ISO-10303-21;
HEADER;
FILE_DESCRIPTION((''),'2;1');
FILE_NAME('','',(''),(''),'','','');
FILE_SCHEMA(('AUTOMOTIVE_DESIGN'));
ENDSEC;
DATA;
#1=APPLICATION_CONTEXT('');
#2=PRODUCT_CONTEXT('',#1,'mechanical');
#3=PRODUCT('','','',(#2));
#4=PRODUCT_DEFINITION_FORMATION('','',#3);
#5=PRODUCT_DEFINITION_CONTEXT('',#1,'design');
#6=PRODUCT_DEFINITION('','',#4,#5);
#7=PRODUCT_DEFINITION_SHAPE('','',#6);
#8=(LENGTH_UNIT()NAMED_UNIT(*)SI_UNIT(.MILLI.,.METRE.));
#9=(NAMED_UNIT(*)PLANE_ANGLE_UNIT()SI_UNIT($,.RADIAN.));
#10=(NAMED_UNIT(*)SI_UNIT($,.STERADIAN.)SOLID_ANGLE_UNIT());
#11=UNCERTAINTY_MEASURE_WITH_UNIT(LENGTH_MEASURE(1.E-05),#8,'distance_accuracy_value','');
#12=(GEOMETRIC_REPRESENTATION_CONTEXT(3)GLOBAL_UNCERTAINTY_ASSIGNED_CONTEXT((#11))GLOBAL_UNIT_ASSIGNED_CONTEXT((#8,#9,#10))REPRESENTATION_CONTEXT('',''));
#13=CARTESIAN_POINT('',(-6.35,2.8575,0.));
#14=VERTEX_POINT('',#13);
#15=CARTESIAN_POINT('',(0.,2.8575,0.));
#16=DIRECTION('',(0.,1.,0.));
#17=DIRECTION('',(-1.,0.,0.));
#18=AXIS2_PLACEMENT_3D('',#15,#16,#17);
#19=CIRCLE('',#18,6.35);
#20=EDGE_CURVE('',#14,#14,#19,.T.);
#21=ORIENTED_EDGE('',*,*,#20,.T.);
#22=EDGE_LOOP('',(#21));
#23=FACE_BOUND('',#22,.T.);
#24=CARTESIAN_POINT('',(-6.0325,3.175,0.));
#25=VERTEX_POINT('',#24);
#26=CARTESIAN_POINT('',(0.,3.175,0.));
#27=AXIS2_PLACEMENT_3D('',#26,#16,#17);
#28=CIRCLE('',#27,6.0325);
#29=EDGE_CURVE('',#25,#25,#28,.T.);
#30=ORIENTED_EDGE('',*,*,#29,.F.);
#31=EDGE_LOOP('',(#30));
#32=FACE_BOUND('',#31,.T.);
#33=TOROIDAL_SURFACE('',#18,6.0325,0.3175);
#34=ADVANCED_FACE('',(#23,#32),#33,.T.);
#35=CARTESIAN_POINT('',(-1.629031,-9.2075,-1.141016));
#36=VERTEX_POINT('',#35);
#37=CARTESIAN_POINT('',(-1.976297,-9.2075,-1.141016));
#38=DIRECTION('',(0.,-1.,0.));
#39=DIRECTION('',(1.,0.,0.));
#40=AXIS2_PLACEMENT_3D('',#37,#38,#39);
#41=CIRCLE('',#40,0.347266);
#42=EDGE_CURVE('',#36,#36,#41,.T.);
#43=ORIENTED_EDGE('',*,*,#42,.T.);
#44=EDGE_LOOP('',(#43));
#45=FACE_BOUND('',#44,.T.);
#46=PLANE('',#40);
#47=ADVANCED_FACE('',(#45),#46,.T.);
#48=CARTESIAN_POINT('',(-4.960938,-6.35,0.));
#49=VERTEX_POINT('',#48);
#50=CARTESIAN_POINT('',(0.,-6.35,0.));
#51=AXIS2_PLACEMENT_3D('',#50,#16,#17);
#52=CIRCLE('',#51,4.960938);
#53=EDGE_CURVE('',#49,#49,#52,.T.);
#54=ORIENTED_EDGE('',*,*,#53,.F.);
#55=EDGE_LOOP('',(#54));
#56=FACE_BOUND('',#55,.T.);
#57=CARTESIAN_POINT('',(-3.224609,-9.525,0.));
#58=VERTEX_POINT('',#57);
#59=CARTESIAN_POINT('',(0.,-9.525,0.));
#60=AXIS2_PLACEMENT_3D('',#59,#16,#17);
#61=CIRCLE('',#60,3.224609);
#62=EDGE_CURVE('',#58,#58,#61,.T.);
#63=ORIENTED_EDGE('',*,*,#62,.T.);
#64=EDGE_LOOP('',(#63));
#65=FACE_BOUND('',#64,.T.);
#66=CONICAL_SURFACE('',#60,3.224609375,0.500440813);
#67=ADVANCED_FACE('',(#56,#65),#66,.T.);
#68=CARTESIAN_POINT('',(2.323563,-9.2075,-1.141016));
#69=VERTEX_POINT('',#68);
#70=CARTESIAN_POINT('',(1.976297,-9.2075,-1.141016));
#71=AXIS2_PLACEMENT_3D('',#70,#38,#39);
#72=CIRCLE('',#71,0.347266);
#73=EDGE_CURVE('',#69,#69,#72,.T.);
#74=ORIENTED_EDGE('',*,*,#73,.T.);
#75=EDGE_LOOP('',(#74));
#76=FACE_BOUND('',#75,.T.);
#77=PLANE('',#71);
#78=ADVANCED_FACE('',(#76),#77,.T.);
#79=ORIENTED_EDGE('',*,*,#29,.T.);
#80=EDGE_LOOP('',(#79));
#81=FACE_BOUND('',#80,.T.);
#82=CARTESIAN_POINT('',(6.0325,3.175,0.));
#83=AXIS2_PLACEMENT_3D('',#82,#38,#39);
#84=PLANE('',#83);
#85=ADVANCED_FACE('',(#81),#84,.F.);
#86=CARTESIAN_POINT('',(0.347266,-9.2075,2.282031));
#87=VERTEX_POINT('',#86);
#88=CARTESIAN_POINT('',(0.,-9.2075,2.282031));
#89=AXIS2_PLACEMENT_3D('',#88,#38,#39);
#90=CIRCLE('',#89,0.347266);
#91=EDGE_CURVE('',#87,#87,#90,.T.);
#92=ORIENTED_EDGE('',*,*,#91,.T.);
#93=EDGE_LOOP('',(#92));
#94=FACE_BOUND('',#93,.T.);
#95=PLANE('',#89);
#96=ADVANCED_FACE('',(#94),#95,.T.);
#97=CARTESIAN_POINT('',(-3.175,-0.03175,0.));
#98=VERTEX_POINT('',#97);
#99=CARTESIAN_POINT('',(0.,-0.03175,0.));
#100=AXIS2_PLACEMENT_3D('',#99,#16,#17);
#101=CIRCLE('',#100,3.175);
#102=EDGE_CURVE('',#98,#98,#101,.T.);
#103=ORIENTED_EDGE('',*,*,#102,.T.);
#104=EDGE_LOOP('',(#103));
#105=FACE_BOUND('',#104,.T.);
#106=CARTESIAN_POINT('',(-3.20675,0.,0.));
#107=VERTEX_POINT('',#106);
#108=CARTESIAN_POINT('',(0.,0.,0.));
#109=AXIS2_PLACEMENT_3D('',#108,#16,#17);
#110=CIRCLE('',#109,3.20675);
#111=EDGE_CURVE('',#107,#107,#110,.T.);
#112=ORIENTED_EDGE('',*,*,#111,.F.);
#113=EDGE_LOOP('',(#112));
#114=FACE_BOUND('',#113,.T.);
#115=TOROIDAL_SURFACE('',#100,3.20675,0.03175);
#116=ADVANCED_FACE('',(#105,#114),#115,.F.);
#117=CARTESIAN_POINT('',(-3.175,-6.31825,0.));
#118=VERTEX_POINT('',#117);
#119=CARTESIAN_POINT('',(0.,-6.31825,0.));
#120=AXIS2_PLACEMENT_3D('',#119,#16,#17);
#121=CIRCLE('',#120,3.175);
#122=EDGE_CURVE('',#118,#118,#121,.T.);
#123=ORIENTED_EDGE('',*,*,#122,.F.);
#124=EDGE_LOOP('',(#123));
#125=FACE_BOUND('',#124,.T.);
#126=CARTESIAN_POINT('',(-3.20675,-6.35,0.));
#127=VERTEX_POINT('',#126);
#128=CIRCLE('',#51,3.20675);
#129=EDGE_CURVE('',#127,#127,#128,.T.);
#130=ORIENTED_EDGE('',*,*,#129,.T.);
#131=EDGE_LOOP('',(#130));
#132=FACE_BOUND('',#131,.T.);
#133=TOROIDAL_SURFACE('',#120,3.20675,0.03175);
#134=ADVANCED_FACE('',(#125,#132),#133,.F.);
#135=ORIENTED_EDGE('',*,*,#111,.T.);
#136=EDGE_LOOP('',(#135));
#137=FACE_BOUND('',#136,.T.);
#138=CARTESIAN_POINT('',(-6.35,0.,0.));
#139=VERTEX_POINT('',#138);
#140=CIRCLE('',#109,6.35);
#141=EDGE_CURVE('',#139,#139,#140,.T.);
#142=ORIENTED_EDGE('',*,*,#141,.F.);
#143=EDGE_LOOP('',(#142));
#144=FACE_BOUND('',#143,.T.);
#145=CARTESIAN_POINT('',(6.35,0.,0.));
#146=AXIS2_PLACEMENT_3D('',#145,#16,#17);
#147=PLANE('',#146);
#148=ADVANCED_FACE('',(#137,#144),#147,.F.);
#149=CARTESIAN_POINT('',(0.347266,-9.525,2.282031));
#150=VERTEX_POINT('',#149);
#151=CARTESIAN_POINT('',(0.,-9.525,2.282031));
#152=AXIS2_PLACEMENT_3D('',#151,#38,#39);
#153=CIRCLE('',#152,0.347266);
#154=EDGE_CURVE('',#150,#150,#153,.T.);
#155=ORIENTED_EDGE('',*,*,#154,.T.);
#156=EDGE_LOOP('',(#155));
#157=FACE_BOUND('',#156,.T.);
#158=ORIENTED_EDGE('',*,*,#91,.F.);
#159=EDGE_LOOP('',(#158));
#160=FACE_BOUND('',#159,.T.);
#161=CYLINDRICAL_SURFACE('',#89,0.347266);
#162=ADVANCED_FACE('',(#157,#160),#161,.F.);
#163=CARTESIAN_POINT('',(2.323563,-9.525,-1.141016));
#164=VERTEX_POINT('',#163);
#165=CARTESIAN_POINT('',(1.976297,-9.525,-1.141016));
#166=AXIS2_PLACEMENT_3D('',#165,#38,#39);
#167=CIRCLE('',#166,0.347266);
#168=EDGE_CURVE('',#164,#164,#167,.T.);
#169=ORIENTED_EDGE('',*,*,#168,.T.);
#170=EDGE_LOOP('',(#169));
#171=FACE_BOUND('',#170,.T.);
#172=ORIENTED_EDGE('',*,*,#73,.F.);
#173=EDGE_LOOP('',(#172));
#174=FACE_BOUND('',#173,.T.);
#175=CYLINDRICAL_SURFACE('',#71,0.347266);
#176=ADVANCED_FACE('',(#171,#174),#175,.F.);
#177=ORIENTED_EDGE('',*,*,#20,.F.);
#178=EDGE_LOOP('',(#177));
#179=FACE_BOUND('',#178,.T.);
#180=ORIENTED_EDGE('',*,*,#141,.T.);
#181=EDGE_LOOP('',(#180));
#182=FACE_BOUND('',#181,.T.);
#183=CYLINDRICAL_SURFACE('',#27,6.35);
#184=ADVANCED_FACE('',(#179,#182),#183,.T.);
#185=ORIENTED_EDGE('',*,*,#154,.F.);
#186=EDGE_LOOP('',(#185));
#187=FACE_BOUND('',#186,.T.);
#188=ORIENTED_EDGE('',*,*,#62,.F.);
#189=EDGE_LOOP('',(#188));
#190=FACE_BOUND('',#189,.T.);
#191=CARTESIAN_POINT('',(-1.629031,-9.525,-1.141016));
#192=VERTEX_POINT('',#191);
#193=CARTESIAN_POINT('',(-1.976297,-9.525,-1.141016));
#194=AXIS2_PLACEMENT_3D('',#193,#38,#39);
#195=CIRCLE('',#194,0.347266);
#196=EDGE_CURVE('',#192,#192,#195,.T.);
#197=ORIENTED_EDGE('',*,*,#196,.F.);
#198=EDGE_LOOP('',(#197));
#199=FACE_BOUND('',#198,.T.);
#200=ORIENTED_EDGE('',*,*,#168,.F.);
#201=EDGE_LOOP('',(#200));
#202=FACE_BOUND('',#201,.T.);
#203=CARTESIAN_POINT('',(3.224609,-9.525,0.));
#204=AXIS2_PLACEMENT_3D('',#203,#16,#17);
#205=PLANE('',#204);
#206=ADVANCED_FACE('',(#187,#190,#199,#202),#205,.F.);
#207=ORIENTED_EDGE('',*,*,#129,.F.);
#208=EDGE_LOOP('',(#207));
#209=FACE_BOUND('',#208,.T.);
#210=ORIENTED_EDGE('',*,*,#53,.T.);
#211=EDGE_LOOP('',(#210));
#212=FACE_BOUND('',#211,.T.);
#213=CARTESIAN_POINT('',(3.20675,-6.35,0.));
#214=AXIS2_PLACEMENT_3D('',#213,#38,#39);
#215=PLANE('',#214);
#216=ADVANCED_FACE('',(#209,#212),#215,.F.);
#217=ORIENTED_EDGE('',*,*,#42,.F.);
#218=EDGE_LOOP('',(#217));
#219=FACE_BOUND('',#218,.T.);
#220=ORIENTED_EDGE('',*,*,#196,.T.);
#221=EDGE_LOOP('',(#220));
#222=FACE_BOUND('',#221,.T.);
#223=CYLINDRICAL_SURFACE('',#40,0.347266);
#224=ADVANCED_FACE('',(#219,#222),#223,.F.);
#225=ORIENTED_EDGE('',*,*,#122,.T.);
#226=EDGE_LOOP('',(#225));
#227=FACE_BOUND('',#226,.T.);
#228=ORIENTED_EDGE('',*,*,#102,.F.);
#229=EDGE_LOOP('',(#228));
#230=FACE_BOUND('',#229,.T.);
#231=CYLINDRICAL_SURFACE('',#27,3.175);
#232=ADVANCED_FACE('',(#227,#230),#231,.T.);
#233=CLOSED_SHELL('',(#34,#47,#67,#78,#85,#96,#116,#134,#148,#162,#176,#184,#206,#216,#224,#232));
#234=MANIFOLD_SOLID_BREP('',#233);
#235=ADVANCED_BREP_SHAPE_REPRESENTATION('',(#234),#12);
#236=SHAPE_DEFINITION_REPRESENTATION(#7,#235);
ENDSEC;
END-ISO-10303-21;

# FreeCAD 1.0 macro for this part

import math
import FreeCAD as App
import Part
import Sketcher
from FreeCAD import Vector
Q = App.Units.Quantity

doc = App.newDocument("Part")
body = doc.addObject("PartDesign::Body", "Body")

# Sketch on XY plane
sketch1 = body.newObject("Sketcher::SketchObject", "Sketch")
sketch1.AttachmentSupport = (doc.getObject("XY_Plane"), [""])
sketch1.MapMode = "FlatFace"
sketch1.addGeometry([
    Part.LineSegment(Vector(0, 3.175, 0), Vector(0, -9.525, 0)),  # 0
    Part.LineSegment(Vector(0, -9.525, 0), Vector(3.225, -9.525, 0)),  # 1
    Part.LineSegment(Vector(3.225, -9.525, 0), Vector(4.961, -6.35, 0)),  # 2
    Part.LineSegment(Vector(4.961, -6.35, 0), Vector(3.207, -6.35, 0)),  # 3
    Part.ArcOfCircle(Part.Circle(Vector(3.207, -6.318, 0), Vector(0, 0, 1), 0.032), math.radians(-180), math.radians(-90)),  # 4
    Part.LineSegment(Vector(3.175, -6.318, 0), Vector(3.175, -0.032, 0)),  # 5
    Part.ArcOfCircle(Part.Circle(Vector(3.207, -0.032, 0), Vector(0, 0, 1), 0.032), math.radians(90), math.radians(180)),  # 6
    Part.LineSegment(Vector(3.207, 0, 0), Vector(6.35, 0, 0)),  # 7
    Part.LineSegment(Vector(6.35, 0, 0), Vector(6.35, 2.857, 0)),  # 8
    Part.ArcOfCircle(Part.Circle(Vector(6.032, 2.857, 0), Vector(0, 0, 1), 0.318), math.radians(0), math.radians(90)),  # 9
    Part.LineSegment(Vector(6.032, 3.175, 0), Vector(0, 3.175, 0)),  # 10
], False)
sketch1.addConstraint([
    Sketcher.Constraint("Coincident", 0, 2, 1, 1),
    Sketcher.Constraint("Coincident", 1, 2, 2, 1),
    Sketcher.Constraint("Coincident", 2, 2, 3, 1),
    Sketcher.Constraint("Tangent", 3, 2, 4, 2),
    Sketcher.Constraint("Tangent", 4, 1, 5, 1),
    Sketcher.Constraint("Tangent", 5, 2, 6, 2),
    Sketcher.Constraint("Tangent", 6, 1, 7, 1),
    Sketcher.Constraint("Coincident", 7, 2, 8, 1),
    Sketcher.Constraint("Tangent", 8, 2, 9, 1),
    Sketcher.Constraint("Tangent", 9, 2, 10, 1),
    Sketcher.Constraint("Coincident", 10, 2, 0, 1),
    Sketcher.Constraint("Vertical", 0),
    Sketcher.Constraint("Horizontal", 1),
    Sketcher.Constraint("Horizontal", 3),
    Sketcher.Constraint("Vertical", 5),
    Sketcher.Constraint("Horizontal", 7),
    Sketcher.Constraint("Vertical", 8),
    Sketcher.Constraint("Horizontal", 10),
    Sketcher.Constraint("Equal", 4, 6),
    Sketcher.Constraint("PointOnObject", 0, 2, -2),
    Sketcher.Constraint("PointOnObject", 6, 1, -1),
    Sketcher.Constraint("DistanceY", 0, 2, 0, 1, Q("0.5 in")),
    Sketcher.Constraint("Radius", 9, Q("0.0125 in")),
    Sketcher.Constraint("DistanceY", 2, 2, -1, 1, Q("0.25 in")),
    Sketcher.Constraint("DistanceX", -1, 1, 7, 2, Q("0.25 in")),
    Sketcher.Constraint("DistanceY", 5, 1, 5, 2, Q("0.2475 in")),
    Sketcher.Constraint("DistanceY", 8, 1, 8, 2, Q("0.1125 in")),
    Sketcher.Constraint("DistanceX", -1, 1, 4, 1, Q("0.125 in")),
    Sketcher.Constraint("DistanceX", 1, 1, 1, 2, Q("3.224609 mm")),
    Sketcher.Constraint("DistanceX", 3, 2, 3, 1, Q("1.754188 mm")),
])
revolution = body.newObject("PartDesign::Revolution", "Revolution")
revolution.Profile = sketch1
revolution.ReferenceAxis = (sketch1, ["V_Axis"])
revolution.Angle = 360

# Sketch on XZ plane
sketch2 = body.newObject("Sketcher::SketchObject", "Sketch001")
sketch2.AttachmentSupport = (doc.getObject("XZ_Plane"), [""])
sketch2.MapMode = "FlatFace"
sketch2.AttachmentOffset = App.Placement(Vector(0, 0, 0.375 * 25.4), App.Rotation())
sketch2.addGeometry([
    Part.Circle(Vector(0, 2.28, 0), Vector(0, 0, 1), 0.35),
    Part.Circle(Vector(1.98, -1.14, 0), Vector(0, 0, 1), 0.35),
    Part.Circle(Vector(-1.98, -1.14, 0), Vector(0, 0, 1), 0.35),
], False)
sketch2.addConstraint([
    Sketcher.Constraint("Equal", 0, 1),
    Sketcher.Constraint("Equal", 1, 2),
    Sketcher.Constraint("Symmetric", 1, 3, 2, 3, -2),
    Sketcher.Constraint("PointOnObject", 0, 3, -2),
    Sketcher.Constraint("Diameter", 0, Q("0.694531 mm")),
    Sketcher.Constraint("DistanceY", -1, 1, 0, 3, Q("2.282031 mm")),
    Sketcher.Constraint("DistanceX", -1, 1, 1, 3, Q("1.976297 mm")),
    Sketcher.Constraint("DistanceY", 1, 3, -1, 1, Q("1.141016 mm")),
])
pocket1 = body.newObject("PartDesign::Pocket", "Pocket")
pocket1.Profile = sketch2
pocket1.Length = Q("0.0125 in")

doc.recompute()
